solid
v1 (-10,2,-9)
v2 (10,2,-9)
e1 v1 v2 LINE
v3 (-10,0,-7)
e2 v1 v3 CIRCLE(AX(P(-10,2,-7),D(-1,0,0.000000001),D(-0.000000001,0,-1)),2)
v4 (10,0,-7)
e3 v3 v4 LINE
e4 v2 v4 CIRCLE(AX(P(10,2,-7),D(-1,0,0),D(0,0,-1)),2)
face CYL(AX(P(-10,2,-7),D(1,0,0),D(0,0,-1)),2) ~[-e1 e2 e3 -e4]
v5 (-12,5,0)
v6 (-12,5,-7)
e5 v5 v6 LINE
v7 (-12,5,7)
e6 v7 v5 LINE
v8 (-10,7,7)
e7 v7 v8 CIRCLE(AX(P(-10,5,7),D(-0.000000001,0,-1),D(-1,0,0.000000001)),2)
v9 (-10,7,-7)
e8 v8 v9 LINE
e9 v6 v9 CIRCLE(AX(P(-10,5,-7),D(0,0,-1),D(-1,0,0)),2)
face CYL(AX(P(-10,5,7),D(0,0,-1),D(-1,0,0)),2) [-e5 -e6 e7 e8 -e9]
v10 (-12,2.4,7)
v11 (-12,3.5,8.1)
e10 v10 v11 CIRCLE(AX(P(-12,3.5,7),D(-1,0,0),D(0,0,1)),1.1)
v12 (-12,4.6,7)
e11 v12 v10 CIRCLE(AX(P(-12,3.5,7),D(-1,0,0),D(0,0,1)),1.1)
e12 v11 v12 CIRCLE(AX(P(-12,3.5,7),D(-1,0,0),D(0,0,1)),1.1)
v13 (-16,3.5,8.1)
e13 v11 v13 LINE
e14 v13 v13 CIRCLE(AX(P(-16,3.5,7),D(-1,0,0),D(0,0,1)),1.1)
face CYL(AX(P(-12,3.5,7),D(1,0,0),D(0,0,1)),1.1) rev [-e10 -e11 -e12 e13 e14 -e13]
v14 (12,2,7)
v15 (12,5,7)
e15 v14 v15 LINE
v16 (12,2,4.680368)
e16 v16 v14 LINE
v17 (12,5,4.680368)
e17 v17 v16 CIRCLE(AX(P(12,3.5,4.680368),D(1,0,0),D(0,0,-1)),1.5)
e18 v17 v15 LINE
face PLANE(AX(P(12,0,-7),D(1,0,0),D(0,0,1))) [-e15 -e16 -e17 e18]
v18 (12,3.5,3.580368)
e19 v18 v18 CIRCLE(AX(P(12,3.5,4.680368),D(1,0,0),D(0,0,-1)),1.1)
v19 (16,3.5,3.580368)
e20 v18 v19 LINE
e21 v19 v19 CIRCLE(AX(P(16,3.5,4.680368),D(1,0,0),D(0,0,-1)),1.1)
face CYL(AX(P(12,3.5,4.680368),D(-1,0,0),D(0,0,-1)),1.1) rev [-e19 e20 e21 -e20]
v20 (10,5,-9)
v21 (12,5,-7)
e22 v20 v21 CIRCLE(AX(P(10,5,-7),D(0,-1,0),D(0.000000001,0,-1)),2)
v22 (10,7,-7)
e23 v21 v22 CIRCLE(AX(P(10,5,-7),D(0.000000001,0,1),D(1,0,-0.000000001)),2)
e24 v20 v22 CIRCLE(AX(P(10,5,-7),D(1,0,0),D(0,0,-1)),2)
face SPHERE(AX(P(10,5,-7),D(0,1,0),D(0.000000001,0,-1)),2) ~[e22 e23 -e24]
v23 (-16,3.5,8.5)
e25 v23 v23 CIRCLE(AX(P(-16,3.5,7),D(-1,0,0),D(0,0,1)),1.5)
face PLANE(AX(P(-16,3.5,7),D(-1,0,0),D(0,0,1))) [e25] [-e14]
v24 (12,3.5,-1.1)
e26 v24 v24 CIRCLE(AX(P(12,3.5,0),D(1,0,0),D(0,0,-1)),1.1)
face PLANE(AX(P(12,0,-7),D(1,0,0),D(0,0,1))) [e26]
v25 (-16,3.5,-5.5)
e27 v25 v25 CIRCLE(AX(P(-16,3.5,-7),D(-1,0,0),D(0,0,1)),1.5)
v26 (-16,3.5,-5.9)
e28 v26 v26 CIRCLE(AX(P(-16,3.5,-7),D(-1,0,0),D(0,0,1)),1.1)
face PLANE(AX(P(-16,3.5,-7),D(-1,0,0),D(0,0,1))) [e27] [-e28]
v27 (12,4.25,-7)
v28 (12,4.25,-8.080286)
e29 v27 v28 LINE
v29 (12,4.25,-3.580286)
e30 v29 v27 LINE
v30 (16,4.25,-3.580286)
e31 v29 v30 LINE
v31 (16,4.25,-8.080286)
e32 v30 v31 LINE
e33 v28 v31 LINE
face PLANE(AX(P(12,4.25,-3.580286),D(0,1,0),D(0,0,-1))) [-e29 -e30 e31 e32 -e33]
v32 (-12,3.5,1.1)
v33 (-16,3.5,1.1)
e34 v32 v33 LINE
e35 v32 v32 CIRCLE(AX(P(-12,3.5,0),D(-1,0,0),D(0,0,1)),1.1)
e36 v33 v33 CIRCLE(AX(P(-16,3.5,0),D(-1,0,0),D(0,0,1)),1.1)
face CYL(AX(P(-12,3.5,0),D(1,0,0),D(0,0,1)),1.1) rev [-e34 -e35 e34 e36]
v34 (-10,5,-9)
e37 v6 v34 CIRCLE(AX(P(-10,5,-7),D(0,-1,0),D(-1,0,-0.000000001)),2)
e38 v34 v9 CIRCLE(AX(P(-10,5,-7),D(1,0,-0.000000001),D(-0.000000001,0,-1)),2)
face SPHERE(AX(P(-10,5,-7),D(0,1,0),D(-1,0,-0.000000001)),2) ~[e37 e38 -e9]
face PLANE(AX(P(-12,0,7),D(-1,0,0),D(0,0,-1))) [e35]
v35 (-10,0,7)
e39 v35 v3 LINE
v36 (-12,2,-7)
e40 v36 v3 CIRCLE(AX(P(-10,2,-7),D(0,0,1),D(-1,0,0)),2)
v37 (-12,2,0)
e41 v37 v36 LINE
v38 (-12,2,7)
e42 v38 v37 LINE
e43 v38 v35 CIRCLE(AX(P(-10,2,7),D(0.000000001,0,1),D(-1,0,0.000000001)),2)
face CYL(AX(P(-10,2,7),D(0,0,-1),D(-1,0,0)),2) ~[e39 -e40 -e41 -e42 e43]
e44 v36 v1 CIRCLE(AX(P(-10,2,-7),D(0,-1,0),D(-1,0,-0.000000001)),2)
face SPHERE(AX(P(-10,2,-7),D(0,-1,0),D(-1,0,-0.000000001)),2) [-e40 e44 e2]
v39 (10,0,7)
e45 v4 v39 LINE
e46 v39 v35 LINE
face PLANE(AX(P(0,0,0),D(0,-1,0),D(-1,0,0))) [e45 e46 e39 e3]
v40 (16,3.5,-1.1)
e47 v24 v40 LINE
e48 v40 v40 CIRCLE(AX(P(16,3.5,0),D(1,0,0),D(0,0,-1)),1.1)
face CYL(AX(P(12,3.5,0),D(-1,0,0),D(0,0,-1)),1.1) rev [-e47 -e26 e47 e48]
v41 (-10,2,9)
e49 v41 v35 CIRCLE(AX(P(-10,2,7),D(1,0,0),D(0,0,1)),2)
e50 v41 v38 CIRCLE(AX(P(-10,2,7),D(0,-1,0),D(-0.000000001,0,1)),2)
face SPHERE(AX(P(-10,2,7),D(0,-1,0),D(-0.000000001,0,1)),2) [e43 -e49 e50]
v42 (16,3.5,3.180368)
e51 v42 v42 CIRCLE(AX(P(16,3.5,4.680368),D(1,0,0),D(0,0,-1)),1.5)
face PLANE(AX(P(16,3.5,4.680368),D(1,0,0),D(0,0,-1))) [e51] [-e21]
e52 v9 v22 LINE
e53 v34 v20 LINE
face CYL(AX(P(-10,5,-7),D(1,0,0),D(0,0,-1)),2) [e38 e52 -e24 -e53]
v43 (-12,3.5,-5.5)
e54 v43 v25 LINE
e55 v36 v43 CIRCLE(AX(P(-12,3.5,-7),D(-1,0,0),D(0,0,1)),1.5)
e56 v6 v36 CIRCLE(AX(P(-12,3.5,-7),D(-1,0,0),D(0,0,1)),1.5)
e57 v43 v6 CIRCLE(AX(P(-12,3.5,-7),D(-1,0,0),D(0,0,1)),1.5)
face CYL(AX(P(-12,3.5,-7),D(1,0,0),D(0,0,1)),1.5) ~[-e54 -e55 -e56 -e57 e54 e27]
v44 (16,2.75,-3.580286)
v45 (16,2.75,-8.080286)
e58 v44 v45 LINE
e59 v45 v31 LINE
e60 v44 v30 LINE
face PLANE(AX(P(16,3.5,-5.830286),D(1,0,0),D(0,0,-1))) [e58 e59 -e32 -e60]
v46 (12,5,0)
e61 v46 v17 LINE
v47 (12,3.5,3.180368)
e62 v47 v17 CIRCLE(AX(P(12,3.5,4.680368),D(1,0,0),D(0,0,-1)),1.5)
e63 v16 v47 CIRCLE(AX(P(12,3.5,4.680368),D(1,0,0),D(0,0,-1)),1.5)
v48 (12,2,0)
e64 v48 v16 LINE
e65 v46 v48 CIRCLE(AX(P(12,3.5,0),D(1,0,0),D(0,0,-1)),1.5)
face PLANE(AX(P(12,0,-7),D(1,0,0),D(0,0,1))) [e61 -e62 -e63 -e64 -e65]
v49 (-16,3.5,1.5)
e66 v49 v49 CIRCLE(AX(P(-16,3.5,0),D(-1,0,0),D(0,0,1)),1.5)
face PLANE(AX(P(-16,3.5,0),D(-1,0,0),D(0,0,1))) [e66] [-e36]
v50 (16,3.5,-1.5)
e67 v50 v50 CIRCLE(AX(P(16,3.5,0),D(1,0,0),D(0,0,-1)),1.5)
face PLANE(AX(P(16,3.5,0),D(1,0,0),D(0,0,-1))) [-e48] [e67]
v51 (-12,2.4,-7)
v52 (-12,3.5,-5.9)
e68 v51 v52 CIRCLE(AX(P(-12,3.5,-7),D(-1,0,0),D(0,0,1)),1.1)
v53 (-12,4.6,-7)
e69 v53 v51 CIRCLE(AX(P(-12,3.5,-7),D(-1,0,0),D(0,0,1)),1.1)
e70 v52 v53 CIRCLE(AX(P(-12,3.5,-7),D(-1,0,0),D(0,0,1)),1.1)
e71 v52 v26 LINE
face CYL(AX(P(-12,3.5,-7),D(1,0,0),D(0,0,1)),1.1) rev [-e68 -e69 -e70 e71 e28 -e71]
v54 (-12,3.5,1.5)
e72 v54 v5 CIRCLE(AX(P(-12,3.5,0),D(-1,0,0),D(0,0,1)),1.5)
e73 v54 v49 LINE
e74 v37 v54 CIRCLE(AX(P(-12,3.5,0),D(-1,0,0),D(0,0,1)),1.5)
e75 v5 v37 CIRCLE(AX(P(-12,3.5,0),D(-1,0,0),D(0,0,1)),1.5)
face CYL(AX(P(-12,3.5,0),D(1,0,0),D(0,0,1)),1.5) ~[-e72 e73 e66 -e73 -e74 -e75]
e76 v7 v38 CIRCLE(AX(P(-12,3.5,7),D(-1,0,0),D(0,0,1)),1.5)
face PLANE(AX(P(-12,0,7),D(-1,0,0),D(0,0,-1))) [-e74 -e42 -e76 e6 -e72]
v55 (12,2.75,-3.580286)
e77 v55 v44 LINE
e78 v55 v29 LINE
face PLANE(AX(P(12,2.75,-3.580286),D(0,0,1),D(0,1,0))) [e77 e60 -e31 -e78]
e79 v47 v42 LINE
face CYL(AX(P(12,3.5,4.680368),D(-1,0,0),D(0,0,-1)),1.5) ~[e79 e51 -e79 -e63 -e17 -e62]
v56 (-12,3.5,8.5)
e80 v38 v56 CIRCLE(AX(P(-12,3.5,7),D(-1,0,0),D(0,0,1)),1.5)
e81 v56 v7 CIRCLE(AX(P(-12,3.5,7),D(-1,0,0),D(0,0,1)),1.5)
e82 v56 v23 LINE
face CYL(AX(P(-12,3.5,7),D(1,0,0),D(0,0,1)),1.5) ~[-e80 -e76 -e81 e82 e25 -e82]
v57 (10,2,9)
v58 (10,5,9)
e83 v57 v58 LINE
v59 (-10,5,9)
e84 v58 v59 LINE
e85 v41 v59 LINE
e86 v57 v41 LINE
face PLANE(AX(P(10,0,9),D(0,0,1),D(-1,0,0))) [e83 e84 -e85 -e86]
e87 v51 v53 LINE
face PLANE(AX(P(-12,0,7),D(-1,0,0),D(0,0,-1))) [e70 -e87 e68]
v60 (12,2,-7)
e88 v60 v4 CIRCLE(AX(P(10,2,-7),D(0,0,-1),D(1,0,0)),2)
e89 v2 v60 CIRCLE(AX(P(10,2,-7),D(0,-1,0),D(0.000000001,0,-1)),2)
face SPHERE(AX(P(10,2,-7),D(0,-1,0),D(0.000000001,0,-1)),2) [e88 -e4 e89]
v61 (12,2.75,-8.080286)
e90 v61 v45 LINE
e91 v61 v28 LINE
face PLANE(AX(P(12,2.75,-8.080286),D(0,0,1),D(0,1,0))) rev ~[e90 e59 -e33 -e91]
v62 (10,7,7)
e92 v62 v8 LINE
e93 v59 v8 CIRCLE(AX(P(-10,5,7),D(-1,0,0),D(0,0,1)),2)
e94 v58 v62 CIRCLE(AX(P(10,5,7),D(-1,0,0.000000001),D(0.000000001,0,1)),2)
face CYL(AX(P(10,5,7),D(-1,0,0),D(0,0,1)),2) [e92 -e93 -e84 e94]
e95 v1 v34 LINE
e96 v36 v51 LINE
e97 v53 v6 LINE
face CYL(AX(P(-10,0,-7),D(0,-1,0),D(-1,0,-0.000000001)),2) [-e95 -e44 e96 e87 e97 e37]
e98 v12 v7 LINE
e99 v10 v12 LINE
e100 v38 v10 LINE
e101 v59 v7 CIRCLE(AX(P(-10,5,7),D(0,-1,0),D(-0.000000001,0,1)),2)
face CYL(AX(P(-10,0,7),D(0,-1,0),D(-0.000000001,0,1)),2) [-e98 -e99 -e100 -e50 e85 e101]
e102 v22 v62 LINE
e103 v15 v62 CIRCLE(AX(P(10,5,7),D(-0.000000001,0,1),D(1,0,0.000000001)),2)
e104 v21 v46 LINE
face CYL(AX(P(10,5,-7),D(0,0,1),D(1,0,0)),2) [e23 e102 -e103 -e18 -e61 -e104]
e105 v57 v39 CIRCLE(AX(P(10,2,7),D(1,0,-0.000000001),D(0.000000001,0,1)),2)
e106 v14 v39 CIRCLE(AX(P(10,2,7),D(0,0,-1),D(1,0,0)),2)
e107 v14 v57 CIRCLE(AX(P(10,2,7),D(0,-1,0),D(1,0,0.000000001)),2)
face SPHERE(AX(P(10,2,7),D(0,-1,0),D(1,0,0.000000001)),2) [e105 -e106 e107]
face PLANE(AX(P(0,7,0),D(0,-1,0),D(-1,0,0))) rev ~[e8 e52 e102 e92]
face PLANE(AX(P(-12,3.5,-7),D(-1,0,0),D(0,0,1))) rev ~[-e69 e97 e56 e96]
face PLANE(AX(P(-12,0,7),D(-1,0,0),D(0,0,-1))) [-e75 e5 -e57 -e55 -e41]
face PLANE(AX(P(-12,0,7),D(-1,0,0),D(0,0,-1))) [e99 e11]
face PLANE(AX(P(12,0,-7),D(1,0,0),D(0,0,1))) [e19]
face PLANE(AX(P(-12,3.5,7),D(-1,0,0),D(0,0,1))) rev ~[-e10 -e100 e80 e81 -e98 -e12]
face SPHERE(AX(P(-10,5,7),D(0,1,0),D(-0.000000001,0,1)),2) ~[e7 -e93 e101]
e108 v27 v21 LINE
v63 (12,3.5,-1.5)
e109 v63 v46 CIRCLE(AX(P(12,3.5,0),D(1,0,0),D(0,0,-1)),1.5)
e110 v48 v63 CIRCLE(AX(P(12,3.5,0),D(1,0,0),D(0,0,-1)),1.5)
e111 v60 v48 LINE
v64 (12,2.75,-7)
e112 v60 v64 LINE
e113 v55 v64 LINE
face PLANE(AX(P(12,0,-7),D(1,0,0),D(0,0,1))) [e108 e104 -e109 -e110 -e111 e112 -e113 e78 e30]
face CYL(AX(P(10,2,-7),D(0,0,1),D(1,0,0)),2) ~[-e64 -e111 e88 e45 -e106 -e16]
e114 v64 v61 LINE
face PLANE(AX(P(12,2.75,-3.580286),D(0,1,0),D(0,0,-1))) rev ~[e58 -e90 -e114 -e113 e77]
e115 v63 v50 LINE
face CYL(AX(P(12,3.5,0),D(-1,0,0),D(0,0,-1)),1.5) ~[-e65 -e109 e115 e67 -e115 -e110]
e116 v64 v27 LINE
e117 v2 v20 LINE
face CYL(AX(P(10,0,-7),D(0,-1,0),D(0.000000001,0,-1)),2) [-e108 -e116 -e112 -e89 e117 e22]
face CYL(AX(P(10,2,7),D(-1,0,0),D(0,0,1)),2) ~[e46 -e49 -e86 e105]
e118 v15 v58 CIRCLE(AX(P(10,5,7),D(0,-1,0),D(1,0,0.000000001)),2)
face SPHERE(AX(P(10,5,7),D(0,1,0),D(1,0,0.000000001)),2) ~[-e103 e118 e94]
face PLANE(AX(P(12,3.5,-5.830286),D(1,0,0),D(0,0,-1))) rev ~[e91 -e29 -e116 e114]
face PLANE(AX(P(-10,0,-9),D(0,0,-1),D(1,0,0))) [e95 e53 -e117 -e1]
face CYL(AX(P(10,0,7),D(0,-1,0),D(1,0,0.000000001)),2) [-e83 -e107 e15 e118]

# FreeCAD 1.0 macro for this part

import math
import FreeCAD as App
import Part
import Sketcher


def edges_at(feature, points):
    """Names of the edges that pass closest to the given points."""
    edges = feature.Shape.Edges
    near = lambda p: min(range(len(edges)), key=lambda i: edges[i].distToShape(Part.Vertex(*p))[0])
    return sorted({f"Edge{near(p) + 1}" for p in points})


def add_polygon(sketch, points):
    """Adds a closed chain of lines whose ends are joined by coincident constraints."""
    first, n = sketch.GeometryCount, len(points)
    for a, b in zip(points, points[1:] + points[:1]):
        sketch.addGeometry(Part.LineSegment(App.Vector(*a, 0), App.Vector(*b, 0)), False)
    for i in range(n):
        sketch.addConstraint(Sketcher.Constraint("Coincident", first + i, 2, first + (i + 1) % n, 1))

doc = App.newDocument("Part")
body = doc.addObject("PartDesign::Body", "Body")

# Sketch on XZ plane
sketch1 = body.newObject("Sketcher::SketchObject", "Sketch")
sketch1.AttachmentSupport = (doc.getObject("XZ_Plane"), [""])
sketch1.MapMode = "FlatFace"
sketch1.addGeometry([
    Part.LineSegment(App.Vector(-10, 9, 0), App.Vector(10, 9, 0)),  # 0
    Part.ArcOfCircle(Part.Circle(App.Vector(10, 7, 0), App.Vector(0, 0, 1), 2), math.radians(0), math.radians(90)),  # 1
    Part.LineSegment(App.Vector(12, 7, 0), App.Vector(12, -7, 0)),  # 2
    Part.ArcOfCircle(Part.Circle(App.Vector(10, -7, 0), App.Vector(0, 0, 1), 2), math.radians(-90), math.radians(0)),  # 3
    Part.LineSegment(App.Vector(10, -9, 0), App.Vector(-10, -9, 0)),  # 4
    Part.ArcOfCircle(Part.Circle(App.Vector(-10, -7, 0), App.Vector(0, 0, 1), 2), math.radians(-180), math.radians(-90)),  # 5
    Part.LineSegment(App.Vector(-12, -7, 0), App.Vector(-12, 7, 0)),  # 6
    Part.ArcOfCircle(Part.Circle(App.Vector(-10, 7, 0), App.Vector(0, 0, 1), 2), math.radians(90), math.radians(180)),  # 7
], False)
sketch1.addConstraint([
    Sketcher.Constraint("Tangent", 0, 2, 1, 2),
    Sketcher.Constraint("Tangent", 1, 1, 2, 1),
    Sketcher.Constraint("Tangent", 2, 2, 3, 2),
    Sketcher.Constraint("Tangent", 3, 1, 4, 1),
    Sketcher.Constraint("Tangent", 4, 2, 5, 2),
    Sketcher.Constraint("Tangent", 5, 1, 6, 1),
    Sketcher.Constraint("Tangent", 6, 2, 7, 2),
    Sketcher.Constraint("Tangent", 7, 1, 0, 1),
    Sketcher.Constraint("Horizontal", 0),
    Sketcher.Constraint("Vertical", 2),
    Sketcher.Constraint("Horizontal", 4),
    Sketcher.Constraint("Vertical", 6),
    Sketcher.Constraint("Equal", 1, 3),
    Sketcher.Constraint("Equal", 3, 5),
    Sketcher.Constraint("Equal", 5, 7),
    Sketcher.Constraint("Symmetric", 1, 3, 5, 3, -1, 1),
    Sketcher.Constraint("Radius", 1, 2.0),
    Sketcher.Constraint("DistanceX", 0, 1, 0, 2, 20.0),
    Sketcher.Constraint("DistanceY", 2, 2, 2, 1, 14.0),
])
pad1 = body.newObject("PartDesign::Pad", "Pad")
pad1.Profile = sketch1
pad1.Length = 7
pad1.Reversed = True
doc.recompute()

fillet = body.newObject("PartDesign::Fillet", "Fillet")
fillet.Base = (pad1, edges_at(pad1, [
    (12, 0, 0),
    (11.414, 0, 8.414),
    (0, 0, 9),
    (-11.414, 0, 8.414),
    (11.414, 7, 8.414),
    (12, 7, 0),
    (11.414, 7, -8.414),
    (0, 7, -9),
    (-11.414, 7, -8.414),
    (-12, 7, 0),
    (-11.414, 7, 8.414),
    (-12, 0, 0),
    (0, 7, 9),
    (-11.414, 0, -8.414),
    (0, 0, -9),
    (11.414, 0, -8.414),
]))
fillet.Radius = 2

# Sketch on YZ plane
sketch2 = body.newObject("Sketcher::SketchObject", "Sketch001")
sketch2.AttachmentSupport = (doc.getObject("YZ_Plane"), [""])
sketch2.MapMode = "FlatFace"
sketch2.AttachmentOffset = App.Placement(App.Vector(0, 0, -12), App.Rotation())
sketch2.addGeometry([
    Part.Circle(App.Vector(3.5, 7, 0), App.Vector(0, 0, 1), 1.5),  # 0
    Part.Circle(App.Vector(3.5, 7, 0), App.Vector(0, 0, 1), 1.1),  # 1
    Part.Circle(App.Vector(3.5, 0, 0), App.Vector(0, 0, 1), 1.5),  # 2
    Part.Circle(App.Vector(3.5, 0, 0), App.Vector(0, 0, 1), 1.1),  # 3
    Part.Circle(App.Vector(3.5, -7, 0), App.Vector(0, 0, 1), 1.5),  # 4
    Part.Circle(App.Vector(3.5, -7, 0), App.Vector(0, 0, 1), 1.1),  # 5
], False)
sketch2.addConstraint([
    Sketcher.Constraint("Coincident", 1, 3, 0, 3),
    Sketcher.Constraint("Coincident", 3, 3, 2, 3),
    Sketcher.Constraint("Coincident", 5, 3, 4, 3),
    Sketcher.Constraint("Equal", 0, 2),
    Sketcher.Constraint("Equal", 1, 3),
    Sketcher.Constraint("Equal", 2, 4),
    Sketcher.Constraint("Equal", 3, 5),
    Sketcher.Constraint("Symmetric", 0, 3, 4, 3, -1),
    Sketcher.Constraint("PointOnObject", 2, 3, -1),
    Sketcher.Constraint("Vertical", 1, 3, 2, 3),
    Sketcher.Constraint("Diameter", 0, 3.0),
    Sketcher.Constraint("Diameter", 1, 2.2),
    Sketcher.Constraint("DistanceY", -1, 1, 0, 3, 7.0),
    Sketcher.Constraint("DistanceX", -1, 1, 0, 3, 3.5),
])
pad2 = body.newObject("PartDesign::Pad", "Pad001")
pad2.Profile = sketch2
pad2.Length = 4
pad2.Reversed = True

# Sketch on YZ plane
sketch3 = body.newObject("Sketcher::SketchObject", "Sketch002")
sketch3.AttachmentSupport = (doc.getObject("YZ_Plane"), [""])
sketch3.MapMode = "FlatFace"
sketch3.AttachmentOffset = App.Placement(App.Vector(0, 0, 12), App.Rotation())
sketch3.addGeometry(Part.Circle(App.Vector(3.5, 4.7, 0), App.Vector(0, 0, 1), 1.5), False)  # 0
sketch3.addGeometry(Part.Circle(App.Vector(3.5, 4.7, 0), App.Vector(0, 0, 1), 1.1), False)  # 1
sketch3.addGeometry(Part.Circle(App.Vector(3.5, 0, 0), App.Vector(0, 0, 1), 1.5), False)  # 2
sketch3.addGeometry(Part.Circle(App.Vector(3.5, 0, 0), App.Vector(0, 0, 1), 1.1), False)  # 3
add_polygon(sketch3, [(4.2, -3.6), (2.8, -3.6), (2.8, -8.1), (4.2, -8.1)])  # lines 4-7
sketch3.addConstraint([
    Sketcher.Constraint("Horizontal", 4),
    Sketcher.Constraint("Vertical", 5),
    Sketcher.Constraint("Horizontal", 6),
    Sketcher.Constraint("Vertical", 7),
    Sketcher.Constraint("Coincident", 1, 3, 0, 3),
    Sketcher.Constraint("Coincident", 3, 3, 2, 3),
    Sketcher.Constraint("Equal", 0, 2),
    Sketcher.Constraint("Equal", 1, 3),
    Sketcher.Constraint("PointOnObject", 2, 3, -1),
    Sketcher.Constraint("Vertical", 1, 3, 2, 3),
    Sketcher.Constraint("Diameter", 0, 3.0),
    Sketcher.Constraint("Diameter", 1, 2.2),
    Sketcher.Constraint("DistanceX", 4, 2, 4, 1, 1.5),
    Sketcher.Constraint("DistanceY", 5, 2, 5, 1, 4.5),
    Sketcher.Constraint("DistanceX", -1, 1, 0, 3, 3.5),
    Sketcher.Constraint("DistanceX", -1, 1, 4, 2, 2.75),
    Sketcher.Constraint("DistanceY", -1, 1, 0, 3, 4.680368),
    Sketcher.Constraint("DistanceY", 4, 2, -1, 1, 3.580286),
])
pad3 = body.newObject("PartDesign::Pad", "Pad002")
pad3.Profile = sketch3
pad3.Length = 4

doc.recompute()
